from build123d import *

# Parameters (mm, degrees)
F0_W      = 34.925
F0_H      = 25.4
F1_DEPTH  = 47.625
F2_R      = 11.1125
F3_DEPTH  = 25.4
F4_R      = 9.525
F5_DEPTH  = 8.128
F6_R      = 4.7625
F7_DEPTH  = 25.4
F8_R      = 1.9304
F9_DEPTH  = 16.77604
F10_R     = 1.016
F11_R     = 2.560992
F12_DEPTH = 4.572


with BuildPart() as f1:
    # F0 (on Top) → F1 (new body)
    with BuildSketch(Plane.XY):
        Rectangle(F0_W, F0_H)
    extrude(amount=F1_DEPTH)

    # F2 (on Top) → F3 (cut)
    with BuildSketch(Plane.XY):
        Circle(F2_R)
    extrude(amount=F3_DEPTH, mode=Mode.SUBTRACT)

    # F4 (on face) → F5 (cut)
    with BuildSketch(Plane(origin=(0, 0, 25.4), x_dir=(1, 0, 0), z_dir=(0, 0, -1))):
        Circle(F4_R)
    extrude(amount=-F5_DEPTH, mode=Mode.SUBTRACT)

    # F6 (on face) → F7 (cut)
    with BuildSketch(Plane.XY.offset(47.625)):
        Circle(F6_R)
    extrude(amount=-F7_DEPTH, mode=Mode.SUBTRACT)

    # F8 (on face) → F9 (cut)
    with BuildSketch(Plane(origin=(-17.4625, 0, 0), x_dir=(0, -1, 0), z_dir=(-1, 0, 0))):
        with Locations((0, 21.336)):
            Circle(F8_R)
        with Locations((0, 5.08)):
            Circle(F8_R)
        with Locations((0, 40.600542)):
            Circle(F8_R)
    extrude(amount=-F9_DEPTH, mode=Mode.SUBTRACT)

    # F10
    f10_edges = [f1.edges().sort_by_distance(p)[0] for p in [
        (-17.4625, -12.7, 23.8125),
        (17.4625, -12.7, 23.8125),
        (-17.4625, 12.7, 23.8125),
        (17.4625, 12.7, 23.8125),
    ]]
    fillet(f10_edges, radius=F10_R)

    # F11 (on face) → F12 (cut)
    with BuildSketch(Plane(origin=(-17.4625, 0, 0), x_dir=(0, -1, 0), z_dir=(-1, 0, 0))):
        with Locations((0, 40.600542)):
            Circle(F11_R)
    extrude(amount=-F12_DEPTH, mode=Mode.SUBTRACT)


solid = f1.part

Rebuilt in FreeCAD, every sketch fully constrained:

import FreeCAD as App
import Part
import Sketcher

V = App.Vector
Q = App.Units.Quantity


def edges_at(feature, points):
    """Names of the edges that pass closest to the given points."""
    edges = feature.Shape.Edges
    near = lambda p: min(range(len(edges)), key=lambda i: edges[i].distToShape(Part.Vertex(*p))[0])
    return sorted({f"Edge{near(p) + 1}" for p in points})


def add_polygon(sketch, points):
    """Adds a closed chain of lines whose ends are joined by coincident constraints."""
    first, n = sketch.GeometryCount, len(points)
    for a, b in zip(points, points[1:] + points[:1]):
        sketch.addGeometry(Part.LineSegment(App.Vector(*a, 0), App.Vector(*b, 0)), False)
    for i in range(n):
        sketch.addConstraint(Sketcher.Constraint("Coincident", first + i, 2, first + (i + 1) % n, 1))

doc = App.newDocument("Part")
body = doc.addObject("PartDesign::Body", "Body")

sketch1 = body.newObject("Sketcher::SketchObject", "Sketch")
sketch1.AttachmentSupport = (doc.getObject("XY_Plane"), [""])
sketch1.MapMode = "FlatFace"
add_polygon(sketch1, [(-17, 13), (-17, -13), (17, -13), (17, 13)])
sketch1.addConstraint([
    Sketcher.Constraint("Vertical", 0),
    Sketcher.Constraint("Horizontal", 1),
    Sketcher.Constraint("Vertical", 2),
    Sketcher.Constraint("Horizontal", 3),
    Sketcher.Constraint("Symmetric", 0, 2, 2, 2, -1, 1),
    Sketcher.Constraint("DistanceY", 0, 2, 0, 1, Q("1 in")),
    Sketcher.Constraint("DistanceX", 1, 1, 1, 2, Q("1.375 in")),
])
pad1 = body.newObject("PartDesign::Pad", "Pad")
pad1.Profile = sketch1
pad1.Length = Q("1.875 in")

sketch2 = body.newObject("Sketcher::SketchObject", "Sketch001")
sketch2.AttachmentSupport = (doc.getObject("XY_Plane"), [""])
sketch2.MapMode = "FlatFace"
sketch2.addGeometry(Part.Circle(V(0, 0, 0), V(0, 0, 1), 11), False)
sketch2.addConstraint([
    Sketcher.Constraint("Coincident", 0, 3, -1, 1),
    Sketcher.Constraint("Diameter", 0, Q("0.875 in")),
])
pocket1 = body.newObject("PartDesign::Pocket", "Pocket")
pocket1.Profile = sketch2
pocket1.Length = Q("1 in")
pocket1.Reversed = True

sketch3 = body.newObject("Sketcher::SketchObject", "Sketch002")
sketch3.AttachmentSupport = (doc.getObject("XY_Plane"), [""])
sketch3.MapMode = "FlatFace"
sketch3.AttachmentOffset = App.Placement(V(0, 0, 1 * 25.4), App.Rotation())
sketch3.addGeometry(Part.Circle(V(0, 0, 0), V(0, 0, 1), 10), False)
sketch3.addConstraint([
    Sketcher.Constraint("Coincident", 0, 3, -1, 1),
    Sketcher.Constraint("Diameter", 0, Q("0.75 in")),
])
pocket2 = body.newObject("PartDesign::Pocket", "Pocket001")
pocket2.Profile = sketch3
pocket2.Length = Q("0.32 in")
pocket2.Reversed = True

sketch4 = body.newObject("Sketcher::SketchObject", "Sketch003")
sketch4.AttachmentSupport = (doc.getObject("XY_Plane"), [""])
sketch4.MapMode = "FlatFace"
sketch4.AttachmentOffset = App.Placement(V(0, 0, 1.875 * 25.4), App.Rotation())
sketch4.addGeometry(Part.Circle(V(0, 0, 0), V(0, 0, 1), 4.8), False)
sketch4.addConstraint([
    Sketcher.Constraint("Coincident", 0, 3, -1, 1),
    Sketcher.Constraint("Diameter", 0, Q("0.375 in")),
])
pocket3 = body.newObject("PartDesign::Pocket", "Pocket002")
pocket3.Profile = sketch4
pocket3.Length = Q("1 in")

sketch5 = body.newObject("Sketcher::SketchObject", "Sketch004")
sketch5.AttachmentSupport = (doc.getObject("YZ_Plane"), [""])
sketch5.MapMode = "FlatFace"
sketch5.AttachmentOffset = App.Placement(V(0, 0, -0.6875 * 25.4), App.Rotation())
sketch5.addGeometry([
    Part.Circle(V(0, 21.3, 0), V(0, 0, 1), 1.9),
    Part.Circle(V(0, 5.1, 0), V(0, 0, 1), 1.9),
    Part.Circle(V(0, 40.6, 0), V(0, 0, 1), 1.9),
], False)
sketch5.addConstraint([
    Sketcher.Constraint("Equal", 0, 1),
    Sketcher.Constraint("Equal", 1, 2),
    Sketcher.Constraint("PointOnObject", 0, 3, -2),
    Sketcher.Constraint("PointOnObject", 1, 3, -2),
    Sketcher.Constraint("PointOnObject", 2, 3, -2),
    Sketcher.Constraint("Diameter", 0, Q("0.152 in")),
    Sketcher.Constraint("DistanceY", -1, 1, 1, 3, Q("0.2 in")),
    Sketcher.Constraint("DistanceY", -1, 1, 0, 3, Q("0.84 in")),
    Sketcher.Constraint("DistanceY", -1, 1, 2, 3, Q("40.600542 mm")),
])
pocket4 = body.newObject("PartDesign::Pocket", "Pocket003")
pocket4.Profile = sketch5
pocket4.Length = 16.77604
pocket4.Reversed = True
doc.recompute()

fillet = body.newObject("PartDesign::Fillet", "Fillet")
fillet.Base = (pocket4, edges_at(pocket4, [
    (-17.462, -12.7, 23.812),
    (17.462, -12.7, 23.812),
    (-17.462, 12.7, 23.812),
    (17.462, 12.7, 23.812),
]))
fillet.Radius = Q("0.04 in")

sketch6 = body.newObject("Sketcher::SketchObject", "Sketch005")
sketch6.AttachmentSupport = (doc.getObject("YZ_Plane"), [""])
sketch6.MapMode = "FlatFace"
sketch6.AttachmentOffset = App.Placement(V(0, 0, -0.6875 * 25.4), App.Rotation())
sketch6.addGeometry(Part.Circle(V(0, 40.6, 0), V(0, 0, 1), 2.6), False)
sketch6.addConstraint([
    Sketcher.Constraint("PointOnObject", 0, 3, -2),
    Sketcher.Constraint("Diameter", 0, Q("5.121984 mm")),
    Sketcher.Constraint("DistanceY", -1, 1, 0, 3, Q("40.600542 mm")),
])
pocket5 = body.newObject("PartDesign::Pocket", "Pocket004")
pocket5.Profile = sketch6
pocket5.Length = Q("0.18 in")
pocket5.Reversed = True

doc.recompute()
